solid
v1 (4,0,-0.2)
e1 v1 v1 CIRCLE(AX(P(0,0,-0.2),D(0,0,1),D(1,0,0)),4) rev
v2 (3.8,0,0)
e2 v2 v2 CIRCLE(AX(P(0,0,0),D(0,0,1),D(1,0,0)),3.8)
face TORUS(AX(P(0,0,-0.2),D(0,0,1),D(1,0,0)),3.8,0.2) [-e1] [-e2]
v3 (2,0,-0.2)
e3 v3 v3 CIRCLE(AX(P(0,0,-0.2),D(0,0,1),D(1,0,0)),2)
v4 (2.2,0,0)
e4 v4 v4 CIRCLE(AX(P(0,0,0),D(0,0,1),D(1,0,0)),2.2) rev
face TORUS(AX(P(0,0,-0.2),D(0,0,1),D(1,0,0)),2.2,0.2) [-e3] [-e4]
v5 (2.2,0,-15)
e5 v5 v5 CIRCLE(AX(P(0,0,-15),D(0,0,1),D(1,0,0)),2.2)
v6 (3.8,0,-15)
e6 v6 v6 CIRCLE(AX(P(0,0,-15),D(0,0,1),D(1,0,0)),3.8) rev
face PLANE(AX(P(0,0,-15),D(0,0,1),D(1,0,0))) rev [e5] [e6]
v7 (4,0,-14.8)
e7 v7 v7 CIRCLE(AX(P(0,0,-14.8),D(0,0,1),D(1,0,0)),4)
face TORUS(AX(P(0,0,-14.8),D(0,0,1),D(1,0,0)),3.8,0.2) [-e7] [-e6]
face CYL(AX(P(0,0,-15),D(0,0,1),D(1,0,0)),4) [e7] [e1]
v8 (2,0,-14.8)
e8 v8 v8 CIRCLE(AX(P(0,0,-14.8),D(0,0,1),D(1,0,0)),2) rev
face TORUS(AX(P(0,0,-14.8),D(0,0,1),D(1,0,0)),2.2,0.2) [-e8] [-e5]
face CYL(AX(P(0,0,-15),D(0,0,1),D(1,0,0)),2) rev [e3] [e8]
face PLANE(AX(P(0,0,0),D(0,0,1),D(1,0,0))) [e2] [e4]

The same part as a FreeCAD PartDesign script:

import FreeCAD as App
import Part
import Sketcher

V = App.Vector
Q = App.Units.Quantity


def edges_at(feature, points):
    """Names of the edges that pass closest to the given points."""
    edges = feature.Shape.Edges
    near = lambda p: min(range(len(edges)), key=lambda i: edges[i].distToShape(Part.Vertex(*p))[0])
    return sorted({f"Edge{near(p) + 1}" for p in points})

doc = App.newDocument("Part")
body = doc.addObject("PartDesign::Body", "Body")

sketch1 = body.newObject("Sketcher::SketchObject", "Sketch")
sketch1.AttachmentSupport = (doc.getObject("XY_Plane"), [""])
sketch1.MapMode = "FlatFace"
sketch1.addGeometry([
    Part.Circle(V(0, 0, 0), V(0, 0, 1), 4),
    Part.Circle(V(0, 0, 0), V(0, 0, 1), 2),
], False)
sketch1.addConstraint([
    Sketcher.Constraint("Coincident", 0, 3, -1, 1),
    Sketcher.Constraint("Coincident", 1, 3, -1, 1),
    Sketcher.Constraint("Diameter", 0, Q("8 mm")),
    Sketcher.Constraint("Diameter", 1, Q("4 mm")),
])
pad1 = body.newObject("PartDesign::Pad", "Pad")
pad1.Profile = sketch1
pad1.Length = 15
pad1.Reversed = True
doc.recompute()

fillet = body.newObject("PartDesign::Fillet", "Fillet")
fillet.Base = (pad1, edges_at(pad1, [
    (-4, 0, 0),
    (-4, 0, -15),
    (-2, 0, -15),
    (-2, 0, 0),
]))
fillet.Radius = 0.2

doc.recompute()
